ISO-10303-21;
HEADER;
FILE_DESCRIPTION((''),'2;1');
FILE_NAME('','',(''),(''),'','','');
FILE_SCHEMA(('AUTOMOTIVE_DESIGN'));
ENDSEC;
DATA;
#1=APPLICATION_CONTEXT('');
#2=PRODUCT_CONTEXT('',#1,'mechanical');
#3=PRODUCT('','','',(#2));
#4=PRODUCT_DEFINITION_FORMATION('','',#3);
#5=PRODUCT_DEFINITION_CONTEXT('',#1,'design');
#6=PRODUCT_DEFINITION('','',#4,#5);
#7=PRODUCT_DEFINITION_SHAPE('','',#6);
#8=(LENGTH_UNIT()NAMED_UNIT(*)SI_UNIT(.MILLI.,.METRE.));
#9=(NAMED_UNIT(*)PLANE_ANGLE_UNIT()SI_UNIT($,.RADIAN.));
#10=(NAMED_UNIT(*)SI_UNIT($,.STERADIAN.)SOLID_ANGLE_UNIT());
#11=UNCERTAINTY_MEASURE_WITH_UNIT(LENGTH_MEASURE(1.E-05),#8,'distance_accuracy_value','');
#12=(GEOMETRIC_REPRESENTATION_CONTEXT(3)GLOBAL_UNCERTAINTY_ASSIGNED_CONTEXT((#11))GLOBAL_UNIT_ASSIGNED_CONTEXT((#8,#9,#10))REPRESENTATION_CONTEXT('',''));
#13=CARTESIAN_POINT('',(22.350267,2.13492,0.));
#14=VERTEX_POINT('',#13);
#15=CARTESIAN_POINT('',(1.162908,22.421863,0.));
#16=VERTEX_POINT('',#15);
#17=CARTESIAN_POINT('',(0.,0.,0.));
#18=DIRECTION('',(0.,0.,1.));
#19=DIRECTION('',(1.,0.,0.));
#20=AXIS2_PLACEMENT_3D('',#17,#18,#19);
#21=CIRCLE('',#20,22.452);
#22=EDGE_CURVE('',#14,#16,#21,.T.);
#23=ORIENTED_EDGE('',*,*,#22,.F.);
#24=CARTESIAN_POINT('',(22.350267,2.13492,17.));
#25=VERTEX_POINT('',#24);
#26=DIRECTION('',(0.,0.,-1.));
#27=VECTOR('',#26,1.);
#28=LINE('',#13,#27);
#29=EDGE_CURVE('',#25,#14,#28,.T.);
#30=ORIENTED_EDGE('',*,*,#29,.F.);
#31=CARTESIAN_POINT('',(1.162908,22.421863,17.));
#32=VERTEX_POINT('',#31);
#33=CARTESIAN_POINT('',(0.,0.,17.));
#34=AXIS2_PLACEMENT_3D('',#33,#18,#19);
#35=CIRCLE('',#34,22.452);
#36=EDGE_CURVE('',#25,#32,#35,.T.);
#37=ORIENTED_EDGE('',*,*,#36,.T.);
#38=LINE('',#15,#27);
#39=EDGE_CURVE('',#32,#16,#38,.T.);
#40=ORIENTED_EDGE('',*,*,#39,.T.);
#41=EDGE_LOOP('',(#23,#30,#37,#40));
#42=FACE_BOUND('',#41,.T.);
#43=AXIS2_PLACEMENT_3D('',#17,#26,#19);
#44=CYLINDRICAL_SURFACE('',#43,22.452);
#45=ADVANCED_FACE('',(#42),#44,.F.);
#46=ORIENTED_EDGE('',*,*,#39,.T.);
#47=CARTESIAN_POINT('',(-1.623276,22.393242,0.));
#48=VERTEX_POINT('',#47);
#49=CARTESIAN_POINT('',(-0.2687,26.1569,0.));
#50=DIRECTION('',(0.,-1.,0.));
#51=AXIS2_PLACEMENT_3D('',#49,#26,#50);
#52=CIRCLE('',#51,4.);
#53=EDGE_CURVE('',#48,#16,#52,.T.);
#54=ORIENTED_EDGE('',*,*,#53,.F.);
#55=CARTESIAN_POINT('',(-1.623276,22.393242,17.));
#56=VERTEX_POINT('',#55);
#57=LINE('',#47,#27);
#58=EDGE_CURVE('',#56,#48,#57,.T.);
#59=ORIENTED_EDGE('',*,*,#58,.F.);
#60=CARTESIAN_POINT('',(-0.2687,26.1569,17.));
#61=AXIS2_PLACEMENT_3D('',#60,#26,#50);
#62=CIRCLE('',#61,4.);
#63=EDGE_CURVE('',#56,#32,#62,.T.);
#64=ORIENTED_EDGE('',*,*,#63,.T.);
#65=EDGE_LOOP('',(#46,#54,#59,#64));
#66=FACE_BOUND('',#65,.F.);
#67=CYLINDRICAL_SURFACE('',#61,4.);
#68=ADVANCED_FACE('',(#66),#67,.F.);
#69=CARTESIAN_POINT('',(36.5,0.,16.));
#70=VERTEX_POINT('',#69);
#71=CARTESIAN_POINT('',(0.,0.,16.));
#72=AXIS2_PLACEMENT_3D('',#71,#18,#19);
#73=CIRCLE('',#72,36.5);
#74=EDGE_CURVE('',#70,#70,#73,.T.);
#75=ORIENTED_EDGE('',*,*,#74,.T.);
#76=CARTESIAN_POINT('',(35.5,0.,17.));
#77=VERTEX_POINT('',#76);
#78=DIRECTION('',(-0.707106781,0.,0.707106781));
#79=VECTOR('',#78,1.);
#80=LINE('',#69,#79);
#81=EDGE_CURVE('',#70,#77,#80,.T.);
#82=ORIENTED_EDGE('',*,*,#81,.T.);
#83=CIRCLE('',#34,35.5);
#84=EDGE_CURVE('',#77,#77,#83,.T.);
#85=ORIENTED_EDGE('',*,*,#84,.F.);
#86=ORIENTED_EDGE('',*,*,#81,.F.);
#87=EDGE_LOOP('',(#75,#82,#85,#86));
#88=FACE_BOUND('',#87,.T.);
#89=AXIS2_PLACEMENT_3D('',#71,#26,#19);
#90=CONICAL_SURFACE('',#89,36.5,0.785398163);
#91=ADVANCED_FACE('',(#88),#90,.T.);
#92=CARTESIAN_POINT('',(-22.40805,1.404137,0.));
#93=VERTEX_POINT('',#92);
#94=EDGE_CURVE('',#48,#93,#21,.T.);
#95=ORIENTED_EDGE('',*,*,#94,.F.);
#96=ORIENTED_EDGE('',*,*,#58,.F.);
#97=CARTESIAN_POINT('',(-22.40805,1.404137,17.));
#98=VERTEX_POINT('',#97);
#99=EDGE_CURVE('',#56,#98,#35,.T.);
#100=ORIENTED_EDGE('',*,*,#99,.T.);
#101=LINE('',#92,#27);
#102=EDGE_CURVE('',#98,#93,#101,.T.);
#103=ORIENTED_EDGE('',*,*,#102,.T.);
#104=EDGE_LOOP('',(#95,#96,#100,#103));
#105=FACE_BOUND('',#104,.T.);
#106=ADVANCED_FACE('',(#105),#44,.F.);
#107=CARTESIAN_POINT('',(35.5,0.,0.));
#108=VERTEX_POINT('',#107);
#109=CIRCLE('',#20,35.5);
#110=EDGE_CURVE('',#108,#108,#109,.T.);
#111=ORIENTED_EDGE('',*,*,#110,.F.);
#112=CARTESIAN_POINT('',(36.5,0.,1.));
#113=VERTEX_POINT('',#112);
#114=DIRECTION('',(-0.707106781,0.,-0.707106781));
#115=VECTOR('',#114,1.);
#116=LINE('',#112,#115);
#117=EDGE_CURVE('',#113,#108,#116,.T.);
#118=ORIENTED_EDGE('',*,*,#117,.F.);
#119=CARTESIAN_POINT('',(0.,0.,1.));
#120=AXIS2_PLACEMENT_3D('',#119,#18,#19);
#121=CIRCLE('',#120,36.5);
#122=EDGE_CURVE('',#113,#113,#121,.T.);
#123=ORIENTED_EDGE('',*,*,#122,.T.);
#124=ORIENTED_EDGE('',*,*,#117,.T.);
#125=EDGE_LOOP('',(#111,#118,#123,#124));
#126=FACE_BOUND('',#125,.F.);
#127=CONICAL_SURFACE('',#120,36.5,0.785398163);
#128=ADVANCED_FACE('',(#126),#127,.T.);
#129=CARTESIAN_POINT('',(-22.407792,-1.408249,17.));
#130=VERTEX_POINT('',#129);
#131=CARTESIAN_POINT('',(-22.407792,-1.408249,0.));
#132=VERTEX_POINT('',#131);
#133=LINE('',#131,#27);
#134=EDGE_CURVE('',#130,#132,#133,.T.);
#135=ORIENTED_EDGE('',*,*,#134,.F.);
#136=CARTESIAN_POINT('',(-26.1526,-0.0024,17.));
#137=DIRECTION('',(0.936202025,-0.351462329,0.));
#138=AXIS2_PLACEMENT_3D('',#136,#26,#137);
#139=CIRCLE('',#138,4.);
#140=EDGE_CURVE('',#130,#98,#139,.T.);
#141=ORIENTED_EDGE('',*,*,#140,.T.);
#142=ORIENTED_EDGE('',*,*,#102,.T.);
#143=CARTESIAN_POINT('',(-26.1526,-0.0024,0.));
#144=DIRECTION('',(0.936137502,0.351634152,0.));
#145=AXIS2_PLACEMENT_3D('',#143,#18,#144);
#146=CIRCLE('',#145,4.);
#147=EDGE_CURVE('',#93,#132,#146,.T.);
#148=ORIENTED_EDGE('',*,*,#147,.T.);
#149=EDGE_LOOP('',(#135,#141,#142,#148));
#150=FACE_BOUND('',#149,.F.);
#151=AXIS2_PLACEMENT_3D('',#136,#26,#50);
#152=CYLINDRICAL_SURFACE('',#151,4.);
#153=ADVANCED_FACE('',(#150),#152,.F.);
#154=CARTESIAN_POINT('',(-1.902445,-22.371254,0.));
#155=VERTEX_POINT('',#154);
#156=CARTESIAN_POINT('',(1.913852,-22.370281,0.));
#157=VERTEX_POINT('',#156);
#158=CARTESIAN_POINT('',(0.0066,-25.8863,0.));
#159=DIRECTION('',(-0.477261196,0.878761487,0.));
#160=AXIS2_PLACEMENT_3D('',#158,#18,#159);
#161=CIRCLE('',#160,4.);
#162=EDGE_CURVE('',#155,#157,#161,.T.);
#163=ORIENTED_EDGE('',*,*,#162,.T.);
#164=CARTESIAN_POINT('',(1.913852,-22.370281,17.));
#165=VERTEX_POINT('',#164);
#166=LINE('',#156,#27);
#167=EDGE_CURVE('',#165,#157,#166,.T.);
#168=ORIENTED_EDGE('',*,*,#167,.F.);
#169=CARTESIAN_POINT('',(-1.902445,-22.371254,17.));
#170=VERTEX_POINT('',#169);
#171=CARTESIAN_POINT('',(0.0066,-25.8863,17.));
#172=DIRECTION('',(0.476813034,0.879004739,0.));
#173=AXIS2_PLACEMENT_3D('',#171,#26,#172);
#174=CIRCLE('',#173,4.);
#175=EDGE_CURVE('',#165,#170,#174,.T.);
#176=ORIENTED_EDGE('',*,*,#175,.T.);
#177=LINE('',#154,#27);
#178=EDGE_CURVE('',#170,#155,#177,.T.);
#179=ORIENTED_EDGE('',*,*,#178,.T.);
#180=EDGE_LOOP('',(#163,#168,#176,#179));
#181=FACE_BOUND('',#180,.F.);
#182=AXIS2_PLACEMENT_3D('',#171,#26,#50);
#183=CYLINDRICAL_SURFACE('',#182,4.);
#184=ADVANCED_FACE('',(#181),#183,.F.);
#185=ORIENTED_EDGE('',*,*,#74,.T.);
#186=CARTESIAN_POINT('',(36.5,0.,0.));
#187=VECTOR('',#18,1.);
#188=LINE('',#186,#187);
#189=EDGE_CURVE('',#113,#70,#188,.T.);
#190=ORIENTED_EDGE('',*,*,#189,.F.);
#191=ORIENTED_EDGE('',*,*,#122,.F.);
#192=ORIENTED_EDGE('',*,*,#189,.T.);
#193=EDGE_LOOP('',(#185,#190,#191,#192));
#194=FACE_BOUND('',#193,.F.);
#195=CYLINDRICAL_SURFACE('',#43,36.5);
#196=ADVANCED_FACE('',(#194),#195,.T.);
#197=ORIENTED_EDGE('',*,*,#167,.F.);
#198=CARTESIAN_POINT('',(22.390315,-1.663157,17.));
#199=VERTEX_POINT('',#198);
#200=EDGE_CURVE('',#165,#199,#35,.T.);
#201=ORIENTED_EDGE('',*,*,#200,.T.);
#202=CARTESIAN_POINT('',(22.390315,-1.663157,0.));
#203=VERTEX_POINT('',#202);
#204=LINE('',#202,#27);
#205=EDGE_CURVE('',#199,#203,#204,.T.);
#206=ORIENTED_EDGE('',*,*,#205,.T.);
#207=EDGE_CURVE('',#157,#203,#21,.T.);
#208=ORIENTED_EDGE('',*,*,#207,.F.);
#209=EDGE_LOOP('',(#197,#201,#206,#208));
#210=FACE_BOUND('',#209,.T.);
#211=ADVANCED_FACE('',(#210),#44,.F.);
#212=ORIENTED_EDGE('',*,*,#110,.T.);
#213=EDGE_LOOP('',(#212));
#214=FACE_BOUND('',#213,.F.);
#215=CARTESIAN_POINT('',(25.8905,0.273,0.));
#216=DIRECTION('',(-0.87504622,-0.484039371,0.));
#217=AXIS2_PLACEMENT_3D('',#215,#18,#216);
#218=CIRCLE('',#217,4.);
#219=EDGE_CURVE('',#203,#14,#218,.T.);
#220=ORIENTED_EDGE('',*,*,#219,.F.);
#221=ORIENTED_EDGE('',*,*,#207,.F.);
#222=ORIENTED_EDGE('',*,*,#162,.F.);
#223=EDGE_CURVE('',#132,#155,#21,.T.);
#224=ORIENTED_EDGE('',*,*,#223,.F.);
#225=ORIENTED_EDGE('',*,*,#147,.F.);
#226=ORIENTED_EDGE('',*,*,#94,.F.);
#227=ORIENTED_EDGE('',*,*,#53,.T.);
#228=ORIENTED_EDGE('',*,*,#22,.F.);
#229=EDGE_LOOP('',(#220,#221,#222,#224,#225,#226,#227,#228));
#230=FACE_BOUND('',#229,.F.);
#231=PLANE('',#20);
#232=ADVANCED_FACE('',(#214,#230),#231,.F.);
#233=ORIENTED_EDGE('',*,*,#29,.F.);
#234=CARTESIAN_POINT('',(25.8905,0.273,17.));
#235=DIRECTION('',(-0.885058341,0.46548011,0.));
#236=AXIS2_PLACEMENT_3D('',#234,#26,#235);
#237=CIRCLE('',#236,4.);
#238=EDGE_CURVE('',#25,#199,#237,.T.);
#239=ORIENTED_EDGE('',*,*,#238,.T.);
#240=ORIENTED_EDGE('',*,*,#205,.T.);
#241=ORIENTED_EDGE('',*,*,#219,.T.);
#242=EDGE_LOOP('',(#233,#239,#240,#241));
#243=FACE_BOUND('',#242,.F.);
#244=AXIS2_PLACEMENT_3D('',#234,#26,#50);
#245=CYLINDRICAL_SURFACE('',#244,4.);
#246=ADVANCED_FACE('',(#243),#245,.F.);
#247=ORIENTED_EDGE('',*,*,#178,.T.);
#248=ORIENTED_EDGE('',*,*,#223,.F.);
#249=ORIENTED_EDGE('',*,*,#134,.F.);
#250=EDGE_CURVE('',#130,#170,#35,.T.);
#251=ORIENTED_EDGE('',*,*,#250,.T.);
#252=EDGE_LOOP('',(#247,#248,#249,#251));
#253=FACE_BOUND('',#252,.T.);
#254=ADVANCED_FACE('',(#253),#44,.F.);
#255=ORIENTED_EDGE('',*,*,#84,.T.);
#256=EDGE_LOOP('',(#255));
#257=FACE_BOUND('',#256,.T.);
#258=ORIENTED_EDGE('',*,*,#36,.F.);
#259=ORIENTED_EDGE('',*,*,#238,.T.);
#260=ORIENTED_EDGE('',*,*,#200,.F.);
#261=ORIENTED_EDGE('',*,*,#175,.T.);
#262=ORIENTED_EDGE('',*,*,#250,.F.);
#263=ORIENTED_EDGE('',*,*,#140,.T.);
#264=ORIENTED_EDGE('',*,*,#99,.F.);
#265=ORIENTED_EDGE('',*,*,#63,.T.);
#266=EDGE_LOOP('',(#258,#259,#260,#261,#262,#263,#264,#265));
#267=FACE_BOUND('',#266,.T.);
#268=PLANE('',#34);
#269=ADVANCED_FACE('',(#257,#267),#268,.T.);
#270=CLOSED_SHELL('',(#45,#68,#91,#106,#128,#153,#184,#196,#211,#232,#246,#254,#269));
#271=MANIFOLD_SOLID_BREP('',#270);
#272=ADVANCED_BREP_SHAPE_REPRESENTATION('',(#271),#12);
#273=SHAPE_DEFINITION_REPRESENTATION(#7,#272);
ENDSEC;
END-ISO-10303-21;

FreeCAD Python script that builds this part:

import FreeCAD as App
import Part
import Sketcher
Q = App.Units.Quantity


def edges_at(feature, points):
    """Names of the edges that pass closest to the given points."""
    edges = feature.Shape.Edges
    near = lambda p: min(range(len(edges)), key=lambda i: edges[i].distToShape(Part.Vertex(*p))[0])
    return sorted({f"Edge{near(p) + 1}" for p in points})

doc = App.newDocument("Part")
body = doc.addObject("PartDesign::Body", "Body")

# Sketch on XY plane
sketch1 = body.newObject("Sketcher::SketchObject", "Sketch")
sketch1.AttachmentSupport = (doc.getObject("XY_Plane"), [""])
sketch1.MapMode = "FlatFace"
sketch1.addGeometry([
    Part.Circle(App.Vector(0, 0, 0), App.Vector(0, 0, 1), 36.5),
    Part.Circle(App.Vector(0, 0, 0), App.Vector(0, 0, 1), 22.452),
], False)
sketch1.addConstraint([
    Sketcher.Constraint("Coincident", 0, 3, -1, 1),
    Sketcher.Constraint("Coincident", 1, 3, -1, 1),
    Sketcher.Constraint("Diameter", 0, Q("73 mm")),
    Sketcher.Constraint("Diameter", 1, Q("44.904 mm")),
])
pad1 = body.newObject("PartDesign::Pad", "Pad")
pad1.Profile = sketch1
pad1.Length = 17
doc.recompute()

chamfer = body.newObject("PartDesign::Chamfer", "Chamfer")
chamfer.Base = (pad1, edges_at(pad1, [(-36.5, 0, 0), (-36.5, 0, 17)]))
chamfer.Size = 1

# Sketch on XY plane
sketch2 = body.newObject("Sketcher::SketchObject", "Sketch001")
sketch2.AttachmentSupport = (doc.getObject("XY_Plane"), [""])
sketch2.MapMode = "FlatFace"
sketch2.AttachmentOffset = App.Placement(App.Vector(0, 0, 17), App.Rotation())
sketch2.addGeometry([
    Part.Circle(App.Vector(-26.1526, -0.0024, 0), App.Vector(0, 0, 1), 4),
    Part.Circle(App.Vector(-0.2687, 26.1569, 0), App.Vector(0, 0, 1), 4),
    Part.Circle(App.Vector(25.8905, 0.273, 0), App.Vector(0, 0, 1), 4),
    Part.Circle(App.Vector(0.0066, -25.8863, 0), App.Vector(0, 0, 1), 4),
], False)
sketch2.addConstraint([
    Sketcher.Constraint("Equal", 0, 1),
    Sketcher.Constraint("Equal", 1, 2),
    Sketcher.Constraint("Equal", 2, 3),
    Sketcher.Constraint("Diameter", 0, Q("8 mm")),
    Sketcher.Constraint("DistanceY", -1, 1, 1, 3, Q("26.157 mm")),
    Sketcher.Constraint("DistanceY", -1, 1, 2, 3, Q("0.273 mm")),
    Sketcher.Constraint("DistanceX", 0, 3, 1, 3, Q("25.884 mm")),
    Sketcher.Constraint("DistanceX", 0, 3, 2, 3, Q("52.043 mm")),
    Sketcher.Constraint("DistanceY", 3, 3, 0, 3, Q("25.884 mm")),
    Sketcher.Constraint("DistanceX", 3, 3, 2, 3, Q("25.884 mm")),
    Sketcher.Constraint("DistanceX", 0, 3, -1, 1, Q("26.1526 mm")),
    Sketcher.Constraint("DistanceY", 0, 3, -1, 1, Q("0.0024 mm")),
])
doc.recompute()
hole = body.newObject("PartDesign::Hole", "Hole")
hole.Profile = sketch2
hole.ThreadType = "None"
hole.Diameter = 8
hole.DepthType = "ThroughAll"

doc.recompute()
